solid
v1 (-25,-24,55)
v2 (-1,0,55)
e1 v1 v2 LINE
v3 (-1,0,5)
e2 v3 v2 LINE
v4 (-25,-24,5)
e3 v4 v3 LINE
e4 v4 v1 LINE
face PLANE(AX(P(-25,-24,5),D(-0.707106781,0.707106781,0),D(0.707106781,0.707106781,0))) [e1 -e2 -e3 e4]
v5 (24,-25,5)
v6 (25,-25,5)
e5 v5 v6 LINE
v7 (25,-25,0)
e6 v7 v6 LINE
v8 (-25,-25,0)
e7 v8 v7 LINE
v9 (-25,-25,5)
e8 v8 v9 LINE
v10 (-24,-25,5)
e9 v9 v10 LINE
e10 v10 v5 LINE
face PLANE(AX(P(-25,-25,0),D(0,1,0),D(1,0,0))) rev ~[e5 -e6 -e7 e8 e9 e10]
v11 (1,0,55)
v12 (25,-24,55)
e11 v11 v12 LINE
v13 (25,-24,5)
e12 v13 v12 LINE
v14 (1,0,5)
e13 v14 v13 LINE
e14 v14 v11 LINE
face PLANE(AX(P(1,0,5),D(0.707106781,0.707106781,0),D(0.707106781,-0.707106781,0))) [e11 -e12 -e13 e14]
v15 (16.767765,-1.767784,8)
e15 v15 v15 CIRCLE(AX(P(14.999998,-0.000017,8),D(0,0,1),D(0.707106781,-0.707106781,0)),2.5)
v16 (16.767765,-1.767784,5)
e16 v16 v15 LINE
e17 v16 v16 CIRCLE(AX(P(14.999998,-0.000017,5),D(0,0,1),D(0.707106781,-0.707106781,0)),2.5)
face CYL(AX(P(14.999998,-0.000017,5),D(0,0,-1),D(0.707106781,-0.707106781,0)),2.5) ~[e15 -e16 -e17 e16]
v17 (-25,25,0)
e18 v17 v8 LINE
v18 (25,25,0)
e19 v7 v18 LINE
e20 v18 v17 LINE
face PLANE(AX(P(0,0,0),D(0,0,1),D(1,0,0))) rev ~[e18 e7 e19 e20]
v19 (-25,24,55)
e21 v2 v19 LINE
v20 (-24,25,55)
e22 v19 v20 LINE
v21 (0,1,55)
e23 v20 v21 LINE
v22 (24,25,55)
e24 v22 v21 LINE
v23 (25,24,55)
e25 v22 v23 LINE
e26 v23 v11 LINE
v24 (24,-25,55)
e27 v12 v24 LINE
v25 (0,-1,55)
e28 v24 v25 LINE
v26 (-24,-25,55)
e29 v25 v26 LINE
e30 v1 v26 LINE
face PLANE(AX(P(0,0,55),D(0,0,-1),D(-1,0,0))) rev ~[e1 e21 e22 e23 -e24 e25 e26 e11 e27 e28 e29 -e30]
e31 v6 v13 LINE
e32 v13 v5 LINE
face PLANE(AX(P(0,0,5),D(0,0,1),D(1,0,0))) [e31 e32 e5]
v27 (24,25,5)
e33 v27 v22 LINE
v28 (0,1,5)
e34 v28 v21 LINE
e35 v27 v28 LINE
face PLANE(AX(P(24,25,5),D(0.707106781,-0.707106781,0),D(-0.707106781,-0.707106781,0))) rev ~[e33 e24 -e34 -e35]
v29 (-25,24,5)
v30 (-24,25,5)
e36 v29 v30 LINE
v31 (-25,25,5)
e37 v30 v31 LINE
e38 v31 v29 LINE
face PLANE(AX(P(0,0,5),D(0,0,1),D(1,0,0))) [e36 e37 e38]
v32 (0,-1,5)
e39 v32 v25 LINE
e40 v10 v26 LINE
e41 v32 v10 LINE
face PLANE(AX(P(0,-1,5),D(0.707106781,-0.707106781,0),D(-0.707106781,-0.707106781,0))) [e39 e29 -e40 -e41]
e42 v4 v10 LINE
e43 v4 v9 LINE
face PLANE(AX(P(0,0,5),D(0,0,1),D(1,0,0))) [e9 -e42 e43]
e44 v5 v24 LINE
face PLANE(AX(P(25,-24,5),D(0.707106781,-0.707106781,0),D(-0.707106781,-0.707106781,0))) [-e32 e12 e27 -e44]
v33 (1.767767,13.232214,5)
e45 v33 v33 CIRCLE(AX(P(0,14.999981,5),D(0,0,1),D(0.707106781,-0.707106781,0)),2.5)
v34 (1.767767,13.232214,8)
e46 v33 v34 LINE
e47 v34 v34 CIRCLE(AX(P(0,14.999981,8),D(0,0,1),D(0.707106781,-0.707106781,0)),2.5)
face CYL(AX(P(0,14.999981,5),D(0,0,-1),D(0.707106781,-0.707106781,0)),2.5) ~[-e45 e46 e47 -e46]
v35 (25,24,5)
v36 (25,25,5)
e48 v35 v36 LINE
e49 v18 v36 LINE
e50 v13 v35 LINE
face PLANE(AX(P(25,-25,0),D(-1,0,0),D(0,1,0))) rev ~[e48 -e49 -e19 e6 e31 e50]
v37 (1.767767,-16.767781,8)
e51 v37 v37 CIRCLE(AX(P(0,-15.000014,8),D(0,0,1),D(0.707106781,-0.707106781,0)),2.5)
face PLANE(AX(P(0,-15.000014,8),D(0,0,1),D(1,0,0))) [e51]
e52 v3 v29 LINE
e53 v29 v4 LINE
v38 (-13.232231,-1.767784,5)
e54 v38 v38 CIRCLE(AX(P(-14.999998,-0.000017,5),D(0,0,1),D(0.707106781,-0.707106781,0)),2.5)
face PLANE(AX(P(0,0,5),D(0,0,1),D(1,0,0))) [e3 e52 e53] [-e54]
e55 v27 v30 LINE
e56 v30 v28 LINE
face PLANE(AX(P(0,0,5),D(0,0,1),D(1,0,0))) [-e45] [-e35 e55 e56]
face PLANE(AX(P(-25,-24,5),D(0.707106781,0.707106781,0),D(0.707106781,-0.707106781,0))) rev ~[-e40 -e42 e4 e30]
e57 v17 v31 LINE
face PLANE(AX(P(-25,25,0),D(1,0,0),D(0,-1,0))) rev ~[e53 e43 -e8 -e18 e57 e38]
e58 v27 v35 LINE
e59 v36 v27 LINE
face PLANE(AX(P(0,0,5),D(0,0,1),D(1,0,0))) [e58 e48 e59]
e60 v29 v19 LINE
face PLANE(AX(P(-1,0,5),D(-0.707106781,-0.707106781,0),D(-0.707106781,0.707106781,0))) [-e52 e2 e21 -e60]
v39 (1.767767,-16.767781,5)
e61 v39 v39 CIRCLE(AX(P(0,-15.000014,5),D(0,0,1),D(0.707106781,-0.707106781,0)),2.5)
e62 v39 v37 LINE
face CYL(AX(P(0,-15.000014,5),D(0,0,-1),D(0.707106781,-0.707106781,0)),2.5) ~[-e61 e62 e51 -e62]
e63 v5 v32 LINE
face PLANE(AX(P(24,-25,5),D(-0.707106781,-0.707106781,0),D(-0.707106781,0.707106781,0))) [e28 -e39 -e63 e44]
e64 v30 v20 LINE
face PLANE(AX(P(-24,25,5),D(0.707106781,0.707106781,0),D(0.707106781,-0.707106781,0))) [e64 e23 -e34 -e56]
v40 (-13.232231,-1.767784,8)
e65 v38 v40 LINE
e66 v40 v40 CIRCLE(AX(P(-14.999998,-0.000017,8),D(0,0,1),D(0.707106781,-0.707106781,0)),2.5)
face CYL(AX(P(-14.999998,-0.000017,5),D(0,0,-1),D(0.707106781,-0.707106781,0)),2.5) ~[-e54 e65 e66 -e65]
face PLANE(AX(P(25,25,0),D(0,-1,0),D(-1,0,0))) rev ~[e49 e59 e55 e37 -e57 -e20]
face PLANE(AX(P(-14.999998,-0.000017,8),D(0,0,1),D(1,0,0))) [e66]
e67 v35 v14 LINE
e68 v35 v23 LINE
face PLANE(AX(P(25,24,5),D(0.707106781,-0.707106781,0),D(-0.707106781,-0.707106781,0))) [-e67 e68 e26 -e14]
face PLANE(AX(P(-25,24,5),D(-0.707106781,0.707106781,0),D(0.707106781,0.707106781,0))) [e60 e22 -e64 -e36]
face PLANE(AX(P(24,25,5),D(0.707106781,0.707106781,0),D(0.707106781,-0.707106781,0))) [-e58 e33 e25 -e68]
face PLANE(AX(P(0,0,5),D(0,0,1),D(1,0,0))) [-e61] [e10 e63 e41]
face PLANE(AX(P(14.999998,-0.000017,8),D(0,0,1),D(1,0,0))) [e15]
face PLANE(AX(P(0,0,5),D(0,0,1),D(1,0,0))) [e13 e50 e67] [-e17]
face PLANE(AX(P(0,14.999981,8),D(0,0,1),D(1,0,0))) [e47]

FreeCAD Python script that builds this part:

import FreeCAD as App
import Part
import Sketcher

V = App.Vector
Q = App.Units.Quantity


def add_polygon(sketch, points):
    """Adds a closed chain of lines whose ends are joined by coincident constraints."""
    first, n = sketch.GeometryCount, len(points)
    for a, b in zip(points, points[1:] + points[:1]):
        sketch.addGeometry(Part.LineSegment(App.Vector(*a, 0), App.Vector(*b, 0)), False)
    for i in range(n):
        sketch.addConstraint(Sketcher.Constraint("Coincident", first + i, 2, first + (i + 1) % n, 1))

doc = App.newDocument("Part")
body = doc.addObject("PartDesign::Body", "Body")

# Sketch on XY plane
sketch1 = body.newObject("Sketcher::SketchObject", "Sketch")
sketch1.AttachmentSupport = (doc.getObject("XY_Plane"), [""])
sketch1.MapMode = "FlatFace"
add_polygon(sketch1, [(-25, 25), (-25, -25), (25, -25), (25, 25)])  # lines 0-3
sketch1.addConstraint(Sketcher.Constraint("Vertical", 0))
sketch1.addConstraint(Sketcher.Constraint("Horizontal", 1))
sketch1.addConstraint(Sketcher.Constraint("Vertical", 2))
sketch1.addConstraint(Sketcher.Constraint("Horizontal", 3))
sketch1.addConstraint(Sketcher.Constraint("Symmetric", 0, 2, 2, 2, -1, 1))
sketch1.addConstraint(Sketcher.Constraint("Equal", 3, 0))
sketch1.addConstraint(Sketcher.Constraint("DistanceX", 1, 1, 1, 2, Q("50 mm")))
pad1 = body.newObject("PartDesign::Pad", "Pad")
pad1.Profile = sketch1
pad1.Length = 5

# Sketch on XY plane
sketch2 = body.newObject("Sketcher::SketchObject", "Sketch001")
sketch2.AttachmentSupport = (doc.getObject("XY_Plane"), [""])
sketch2.MapMode = "FlatFace"
sketch2.AttachmentOffset = App.Placement(V(0, 0, 5), App.Rotation())
add_polygon(sketch2, [(0, -1), (24, -25), (25, -24), (1, 0), (25, 24), (24, 25), (0, 1), (-24, 25), (-25, 24), (-1, 0), (-25, -24), (-24, -25)])  # lines 0-11
sketch2.addConstraint(Sketcher.Constraint("Symmetric", 0, 2, 6, 2, -1, 1))
sketch2.addConstraint(Sketcher.Constraint("Symmetric", 1, 2, 7, 2, -1, 1))
sketch2.addConstraint(Sketcher.Constraint("Symmetric", 2, 2, 8, 2, -1, 1))
sketch2.addConstraint(Sketcher.Constraint("Symmetric", 3, 2, 9, 2, -1, 1))
sketch2.addConstraint(Sketcher.Constraint("Symmetric", 4, 2, 10, 2, -1, 1))
sketch2.addConstraint(Sketcher.Constraint("Symmetric", 5, 2, 11, 2, -1, 1))
sketch2.addConstraint(Sketcher.Constraint("Symmetric", 4, 2, 6, 2, -2))
sketch2.addConstraint(Sketcher.Constraint("Symmetric", 3, 2, 7, 2, -2))
sketch2.addConstraint(Sketcher.Constraint("PointOnObject", 2, 2, -1))
sketch2.addConstraint(Sketcher.Constraint("PointOnObject", 5, 2, -2))
sketch2.addConstraint(Sketcher.Constraint("Perpendicular", 0, 1))
sketch2.addConstraint(Sketcher.Constraint("Perpendicular", 1, 2))
sketch2.addConstraint(Sketcher.Constraint("Perpendicular", 2, 3))
sketch2.addConstraint(Sketcher.Constraint("Equal", 0, 2))
sketch2.addConstraint(Sketcher.Constraint("DistanceX", -1, 1, 0, 2, Q("24 mm")))
sketch2.addConstraint(Sketcher.Constraint("DistanceY", 0, 2, -1, 1, Q("25 mm")))
pad2 = body.newObject("PartDesign::Pad", "Pad001")
pad2.Profile = sketch2
pad2.Length = 50

# Sketch on XY plane
sketch3 = body.newObject("Sketcher::SketchObject", "Sketch002")
sketch3.AttachmentSupport = (doc.getObject("XY_Plane"), [""])
sketch3.MapMode = "FlatFace"
sketch3.AttachmentOffset = App.Placement(V(0, 0, 5), App.Rotation())
sketch3.addGeometry(Part.Circle(V(0, 15, 0), V(0, 0, 1), 2.5), False)
sketch3.addGeometry(Part.Circle(V(15, 0, 0), V(0, 0, 1), 2.5), False)
sketch3.addGeometry(Part.Circle(V(0, -15, 0), V(0, 0, 1), 2.5), False)
sketch3.addGeometry(Part.Circle(V(-15, 0, 0), V(0, 0, 1), 2.5), False)
sketch3.addConstraint(Sketcher.Constraint("Equal", 0, 1))
sketch3.addConstraint(Sketcher.Constraint("Equal", 1, 2))
sketch3.addConstraint(Sketcher.Constraint("Equal", 2, 3))
sketch3.addConstraint(Sketcher.Constraint("Symmetric", 0, 3, 2, 3, -1, 1))
sketch3.addConstraint(Sketcher.Constraint("Symmetric", 1, 3, 3, 3, -1, 1))
sketch3.addConstraint(Sketcher.Constraint("PointOnObject", 0, 3, -2))
sketch3.addConstraint(Sketcher.Constraint("PointOnObject", 1, 3, -1))
sketch3.addConstraint(Sketcher.Constraint("Diameter", 0, Q("5 mm")))
sketch3.addConstraint(Sketcher.Constraint("DistanceY", -1, 1, 0, 3, Q("15 mm")))
sketch3.addConstraint(Sketcher.Constraint("DistanceX", -1, 1, 1, 3, Q("15 mm")))
pad3 = body.newObject("PartDesign::Pad", "Pad002")
pad3.Profile = sketch3
pad3.Length = 3

doc.recompute()
